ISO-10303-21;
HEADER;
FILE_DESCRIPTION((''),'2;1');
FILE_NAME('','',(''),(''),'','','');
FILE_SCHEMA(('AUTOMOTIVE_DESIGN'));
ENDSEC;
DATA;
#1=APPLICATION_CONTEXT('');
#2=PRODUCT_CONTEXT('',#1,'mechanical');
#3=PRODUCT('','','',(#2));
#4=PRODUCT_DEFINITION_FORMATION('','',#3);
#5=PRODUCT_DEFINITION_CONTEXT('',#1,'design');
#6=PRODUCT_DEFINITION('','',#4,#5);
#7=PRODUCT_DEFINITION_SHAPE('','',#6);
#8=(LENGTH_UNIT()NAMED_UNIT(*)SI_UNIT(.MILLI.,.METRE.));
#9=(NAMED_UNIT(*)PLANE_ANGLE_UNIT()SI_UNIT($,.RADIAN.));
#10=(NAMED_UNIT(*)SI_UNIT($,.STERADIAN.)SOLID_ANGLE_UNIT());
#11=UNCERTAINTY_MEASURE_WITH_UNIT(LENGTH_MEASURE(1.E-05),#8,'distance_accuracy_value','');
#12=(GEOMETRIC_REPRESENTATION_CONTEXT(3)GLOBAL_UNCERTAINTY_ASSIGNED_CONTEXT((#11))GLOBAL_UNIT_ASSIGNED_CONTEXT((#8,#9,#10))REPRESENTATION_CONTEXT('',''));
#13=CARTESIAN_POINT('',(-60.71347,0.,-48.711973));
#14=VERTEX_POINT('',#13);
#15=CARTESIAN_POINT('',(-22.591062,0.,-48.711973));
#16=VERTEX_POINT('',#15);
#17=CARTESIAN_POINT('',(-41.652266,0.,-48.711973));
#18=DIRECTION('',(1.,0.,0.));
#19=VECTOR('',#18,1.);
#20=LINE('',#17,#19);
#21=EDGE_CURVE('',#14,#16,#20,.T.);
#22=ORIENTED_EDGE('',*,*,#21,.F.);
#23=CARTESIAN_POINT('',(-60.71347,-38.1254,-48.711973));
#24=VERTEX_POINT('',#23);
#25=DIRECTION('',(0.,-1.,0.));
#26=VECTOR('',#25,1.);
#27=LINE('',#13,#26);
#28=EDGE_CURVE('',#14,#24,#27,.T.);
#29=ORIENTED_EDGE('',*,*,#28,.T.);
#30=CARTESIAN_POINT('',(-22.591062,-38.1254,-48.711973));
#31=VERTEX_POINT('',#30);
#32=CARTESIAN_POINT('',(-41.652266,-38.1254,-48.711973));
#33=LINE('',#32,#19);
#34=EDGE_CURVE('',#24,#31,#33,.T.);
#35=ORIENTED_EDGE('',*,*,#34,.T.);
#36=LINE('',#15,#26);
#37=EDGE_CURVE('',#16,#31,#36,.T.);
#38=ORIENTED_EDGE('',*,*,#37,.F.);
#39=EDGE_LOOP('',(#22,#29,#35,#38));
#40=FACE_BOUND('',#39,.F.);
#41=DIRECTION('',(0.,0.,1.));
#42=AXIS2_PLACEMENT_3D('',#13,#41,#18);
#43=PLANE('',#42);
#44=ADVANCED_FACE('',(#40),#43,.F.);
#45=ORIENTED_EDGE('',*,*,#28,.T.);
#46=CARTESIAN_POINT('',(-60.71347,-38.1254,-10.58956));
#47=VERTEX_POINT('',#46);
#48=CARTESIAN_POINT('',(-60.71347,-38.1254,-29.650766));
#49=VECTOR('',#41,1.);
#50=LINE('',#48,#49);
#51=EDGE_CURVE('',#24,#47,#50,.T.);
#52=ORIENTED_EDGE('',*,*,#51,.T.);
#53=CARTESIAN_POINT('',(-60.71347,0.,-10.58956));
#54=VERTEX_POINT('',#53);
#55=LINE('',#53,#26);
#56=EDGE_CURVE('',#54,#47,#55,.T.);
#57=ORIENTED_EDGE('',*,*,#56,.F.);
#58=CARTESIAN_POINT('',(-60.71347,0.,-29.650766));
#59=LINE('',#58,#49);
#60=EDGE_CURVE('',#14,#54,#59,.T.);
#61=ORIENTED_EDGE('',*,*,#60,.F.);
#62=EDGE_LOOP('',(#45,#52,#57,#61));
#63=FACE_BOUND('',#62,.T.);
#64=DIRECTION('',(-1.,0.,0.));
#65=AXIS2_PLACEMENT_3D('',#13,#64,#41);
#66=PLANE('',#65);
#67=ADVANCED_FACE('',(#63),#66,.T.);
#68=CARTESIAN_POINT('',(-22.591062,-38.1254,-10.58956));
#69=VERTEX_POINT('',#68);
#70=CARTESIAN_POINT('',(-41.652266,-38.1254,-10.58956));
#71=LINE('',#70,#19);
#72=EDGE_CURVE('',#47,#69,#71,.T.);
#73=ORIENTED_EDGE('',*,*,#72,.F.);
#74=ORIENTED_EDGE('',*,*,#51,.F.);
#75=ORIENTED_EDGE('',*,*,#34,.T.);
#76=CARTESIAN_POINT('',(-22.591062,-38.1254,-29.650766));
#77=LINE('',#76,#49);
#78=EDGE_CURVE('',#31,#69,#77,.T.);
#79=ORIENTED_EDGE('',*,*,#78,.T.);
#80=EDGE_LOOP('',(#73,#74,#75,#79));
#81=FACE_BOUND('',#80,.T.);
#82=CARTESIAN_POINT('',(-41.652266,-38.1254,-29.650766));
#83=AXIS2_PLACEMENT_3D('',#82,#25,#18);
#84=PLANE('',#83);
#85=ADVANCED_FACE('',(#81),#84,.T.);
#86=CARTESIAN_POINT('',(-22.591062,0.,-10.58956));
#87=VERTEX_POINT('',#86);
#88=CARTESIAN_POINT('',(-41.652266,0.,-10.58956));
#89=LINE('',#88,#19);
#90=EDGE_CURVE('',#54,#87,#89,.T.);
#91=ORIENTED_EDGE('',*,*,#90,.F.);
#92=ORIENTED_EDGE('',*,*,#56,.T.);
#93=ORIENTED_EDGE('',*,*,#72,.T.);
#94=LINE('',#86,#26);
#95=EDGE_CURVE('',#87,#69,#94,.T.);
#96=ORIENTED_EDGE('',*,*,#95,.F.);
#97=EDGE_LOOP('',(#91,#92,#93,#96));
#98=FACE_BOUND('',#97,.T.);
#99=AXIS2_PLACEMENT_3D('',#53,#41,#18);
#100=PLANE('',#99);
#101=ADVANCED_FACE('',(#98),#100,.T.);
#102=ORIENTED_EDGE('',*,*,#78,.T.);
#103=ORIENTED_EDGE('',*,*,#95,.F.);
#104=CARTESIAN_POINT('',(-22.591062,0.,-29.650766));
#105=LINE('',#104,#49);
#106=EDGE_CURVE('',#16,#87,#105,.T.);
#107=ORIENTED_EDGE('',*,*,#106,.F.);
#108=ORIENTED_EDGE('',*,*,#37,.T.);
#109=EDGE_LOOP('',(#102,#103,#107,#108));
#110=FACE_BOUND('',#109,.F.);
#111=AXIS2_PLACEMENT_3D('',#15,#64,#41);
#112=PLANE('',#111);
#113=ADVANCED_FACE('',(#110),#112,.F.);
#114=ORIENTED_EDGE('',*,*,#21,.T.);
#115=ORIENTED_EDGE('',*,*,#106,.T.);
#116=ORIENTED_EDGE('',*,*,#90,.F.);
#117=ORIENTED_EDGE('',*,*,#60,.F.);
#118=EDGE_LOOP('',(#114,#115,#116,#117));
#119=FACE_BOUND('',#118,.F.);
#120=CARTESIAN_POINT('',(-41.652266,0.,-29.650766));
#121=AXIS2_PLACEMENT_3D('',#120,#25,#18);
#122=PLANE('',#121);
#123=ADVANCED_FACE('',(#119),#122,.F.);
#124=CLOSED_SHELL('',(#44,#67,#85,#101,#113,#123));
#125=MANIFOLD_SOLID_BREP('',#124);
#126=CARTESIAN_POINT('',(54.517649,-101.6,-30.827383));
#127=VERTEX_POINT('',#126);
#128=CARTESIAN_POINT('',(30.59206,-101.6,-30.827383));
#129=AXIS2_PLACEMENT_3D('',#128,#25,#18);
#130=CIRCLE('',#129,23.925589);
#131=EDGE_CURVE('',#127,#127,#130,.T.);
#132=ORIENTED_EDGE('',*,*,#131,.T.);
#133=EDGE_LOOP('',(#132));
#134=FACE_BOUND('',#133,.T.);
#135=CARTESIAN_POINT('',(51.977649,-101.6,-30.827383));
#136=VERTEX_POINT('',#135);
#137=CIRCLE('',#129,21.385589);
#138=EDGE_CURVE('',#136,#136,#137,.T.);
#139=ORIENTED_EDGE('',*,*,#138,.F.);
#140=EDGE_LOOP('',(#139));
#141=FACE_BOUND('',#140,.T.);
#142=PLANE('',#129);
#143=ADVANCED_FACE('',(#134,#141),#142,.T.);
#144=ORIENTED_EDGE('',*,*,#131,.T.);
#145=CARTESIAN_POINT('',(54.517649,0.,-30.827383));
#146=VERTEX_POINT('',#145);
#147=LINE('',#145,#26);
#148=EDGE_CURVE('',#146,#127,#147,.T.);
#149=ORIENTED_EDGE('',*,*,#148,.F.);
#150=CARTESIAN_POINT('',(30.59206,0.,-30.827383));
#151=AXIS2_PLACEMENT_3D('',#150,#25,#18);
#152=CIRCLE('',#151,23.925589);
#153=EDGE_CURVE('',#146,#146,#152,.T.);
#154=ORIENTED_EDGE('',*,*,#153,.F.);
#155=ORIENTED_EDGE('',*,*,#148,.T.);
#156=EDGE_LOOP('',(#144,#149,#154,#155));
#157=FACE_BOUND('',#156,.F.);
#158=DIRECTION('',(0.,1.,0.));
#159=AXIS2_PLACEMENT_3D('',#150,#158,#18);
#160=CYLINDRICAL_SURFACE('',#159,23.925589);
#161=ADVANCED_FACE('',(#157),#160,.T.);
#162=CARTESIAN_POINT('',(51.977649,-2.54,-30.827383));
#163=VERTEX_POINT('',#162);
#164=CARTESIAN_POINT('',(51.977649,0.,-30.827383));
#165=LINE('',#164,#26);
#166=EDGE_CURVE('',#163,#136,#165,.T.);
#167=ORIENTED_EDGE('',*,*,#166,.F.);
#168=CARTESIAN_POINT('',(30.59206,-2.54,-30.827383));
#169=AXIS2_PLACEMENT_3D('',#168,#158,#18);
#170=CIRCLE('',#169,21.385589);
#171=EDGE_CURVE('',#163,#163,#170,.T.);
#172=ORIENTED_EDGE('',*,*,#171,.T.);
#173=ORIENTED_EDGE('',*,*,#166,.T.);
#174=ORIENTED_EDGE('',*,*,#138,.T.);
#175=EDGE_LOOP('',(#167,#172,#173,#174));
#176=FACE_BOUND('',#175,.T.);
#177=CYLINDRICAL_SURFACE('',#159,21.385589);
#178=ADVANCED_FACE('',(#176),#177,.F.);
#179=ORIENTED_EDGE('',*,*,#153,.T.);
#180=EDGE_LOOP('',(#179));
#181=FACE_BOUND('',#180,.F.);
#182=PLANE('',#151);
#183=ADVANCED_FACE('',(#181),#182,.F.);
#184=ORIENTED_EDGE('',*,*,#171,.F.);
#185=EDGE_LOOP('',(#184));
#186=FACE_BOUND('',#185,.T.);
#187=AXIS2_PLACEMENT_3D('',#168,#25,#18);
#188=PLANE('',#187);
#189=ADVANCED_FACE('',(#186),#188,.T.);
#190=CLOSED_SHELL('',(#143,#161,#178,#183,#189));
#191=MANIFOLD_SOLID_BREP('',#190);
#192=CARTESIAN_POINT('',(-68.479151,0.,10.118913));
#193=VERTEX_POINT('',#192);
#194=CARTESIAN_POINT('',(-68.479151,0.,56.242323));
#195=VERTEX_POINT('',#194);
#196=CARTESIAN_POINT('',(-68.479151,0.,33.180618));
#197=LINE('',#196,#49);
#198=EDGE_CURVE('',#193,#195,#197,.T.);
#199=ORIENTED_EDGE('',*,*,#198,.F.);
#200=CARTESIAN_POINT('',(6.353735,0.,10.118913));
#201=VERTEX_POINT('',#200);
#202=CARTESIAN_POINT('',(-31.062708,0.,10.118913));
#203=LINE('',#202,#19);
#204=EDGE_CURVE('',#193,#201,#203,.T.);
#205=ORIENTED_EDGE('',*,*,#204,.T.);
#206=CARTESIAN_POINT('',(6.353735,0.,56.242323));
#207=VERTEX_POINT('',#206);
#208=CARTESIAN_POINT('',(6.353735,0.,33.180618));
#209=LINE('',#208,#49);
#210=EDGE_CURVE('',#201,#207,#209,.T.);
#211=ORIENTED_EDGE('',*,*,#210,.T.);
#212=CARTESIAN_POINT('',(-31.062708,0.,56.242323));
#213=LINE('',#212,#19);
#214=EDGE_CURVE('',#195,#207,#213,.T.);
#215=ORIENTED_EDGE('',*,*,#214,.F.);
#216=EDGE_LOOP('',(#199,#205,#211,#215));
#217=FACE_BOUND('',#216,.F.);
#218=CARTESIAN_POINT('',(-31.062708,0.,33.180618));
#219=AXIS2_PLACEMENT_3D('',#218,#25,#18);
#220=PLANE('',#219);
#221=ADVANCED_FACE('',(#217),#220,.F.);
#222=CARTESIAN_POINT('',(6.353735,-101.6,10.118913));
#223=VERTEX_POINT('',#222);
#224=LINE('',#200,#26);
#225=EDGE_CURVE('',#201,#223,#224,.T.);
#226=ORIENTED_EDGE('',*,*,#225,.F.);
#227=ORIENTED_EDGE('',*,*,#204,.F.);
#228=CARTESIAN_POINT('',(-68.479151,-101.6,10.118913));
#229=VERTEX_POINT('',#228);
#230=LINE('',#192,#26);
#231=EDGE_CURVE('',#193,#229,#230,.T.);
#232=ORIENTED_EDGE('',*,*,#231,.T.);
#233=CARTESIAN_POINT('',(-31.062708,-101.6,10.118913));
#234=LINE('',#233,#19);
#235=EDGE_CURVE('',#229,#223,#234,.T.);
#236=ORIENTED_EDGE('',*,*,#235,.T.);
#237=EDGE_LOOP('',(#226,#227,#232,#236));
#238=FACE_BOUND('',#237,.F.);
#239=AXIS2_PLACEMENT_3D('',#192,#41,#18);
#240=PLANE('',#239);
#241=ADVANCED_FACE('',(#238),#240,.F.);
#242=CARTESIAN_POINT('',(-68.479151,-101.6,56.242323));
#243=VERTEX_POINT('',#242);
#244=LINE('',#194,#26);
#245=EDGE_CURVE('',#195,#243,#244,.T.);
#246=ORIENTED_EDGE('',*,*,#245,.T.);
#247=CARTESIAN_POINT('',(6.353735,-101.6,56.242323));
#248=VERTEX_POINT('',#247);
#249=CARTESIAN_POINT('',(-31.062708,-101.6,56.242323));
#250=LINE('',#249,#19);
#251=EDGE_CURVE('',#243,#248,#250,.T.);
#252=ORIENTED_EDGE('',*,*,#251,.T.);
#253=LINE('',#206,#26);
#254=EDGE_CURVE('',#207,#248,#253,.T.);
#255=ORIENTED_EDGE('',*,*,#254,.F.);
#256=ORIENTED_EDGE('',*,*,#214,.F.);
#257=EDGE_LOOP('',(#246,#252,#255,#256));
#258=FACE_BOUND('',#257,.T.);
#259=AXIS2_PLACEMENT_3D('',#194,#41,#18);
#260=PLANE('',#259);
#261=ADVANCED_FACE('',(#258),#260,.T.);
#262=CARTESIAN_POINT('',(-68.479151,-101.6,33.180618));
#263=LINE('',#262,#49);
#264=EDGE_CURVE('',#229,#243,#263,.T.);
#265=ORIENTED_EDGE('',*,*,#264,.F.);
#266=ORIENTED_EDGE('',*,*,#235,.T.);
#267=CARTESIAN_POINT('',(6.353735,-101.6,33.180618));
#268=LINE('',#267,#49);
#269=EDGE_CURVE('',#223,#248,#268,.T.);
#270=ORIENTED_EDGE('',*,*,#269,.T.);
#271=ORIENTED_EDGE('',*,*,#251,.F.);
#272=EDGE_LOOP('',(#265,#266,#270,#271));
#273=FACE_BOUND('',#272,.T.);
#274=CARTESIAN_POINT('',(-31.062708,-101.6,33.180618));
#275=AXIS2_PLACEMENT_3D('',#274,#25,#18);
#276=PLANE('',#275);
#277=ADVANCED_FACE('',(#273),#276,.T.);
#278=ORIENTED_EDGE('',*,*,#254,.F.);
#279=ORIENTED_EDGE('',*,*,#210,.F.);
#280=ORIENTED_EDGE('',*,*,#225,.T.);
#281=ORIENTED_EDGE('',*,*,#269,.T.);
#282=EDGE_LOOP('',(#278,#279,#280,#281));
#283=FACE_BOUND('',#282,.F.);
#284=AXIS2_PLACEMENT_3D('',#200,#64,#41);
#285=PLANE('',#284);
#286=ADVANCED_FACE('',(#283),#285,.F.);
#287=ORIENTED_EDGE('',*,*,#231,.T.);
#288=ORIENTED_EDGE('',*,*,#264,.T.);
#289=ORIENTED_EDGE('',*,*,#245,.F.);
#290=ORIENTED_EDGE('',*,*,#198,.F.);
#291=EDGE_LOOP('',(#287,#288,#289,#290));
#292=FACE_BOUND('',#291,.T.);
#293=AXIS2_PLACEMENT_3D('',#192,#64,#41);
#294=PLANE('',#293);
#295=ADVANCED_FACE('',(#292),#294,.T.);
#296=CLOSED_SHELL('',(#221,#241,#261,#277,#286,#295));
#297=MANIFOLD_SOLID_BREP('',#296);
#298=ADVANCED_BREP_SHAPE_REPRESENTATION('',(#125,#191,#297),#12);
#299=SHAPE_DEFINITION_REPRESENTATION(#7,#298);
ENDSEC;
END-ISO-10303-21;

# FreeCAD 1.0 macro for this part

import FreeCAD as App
import Part
import Sketcher
Q = App.Units.Quantity


def faces_at(feature, points):
    """Names of the faces that lie closest to the given points."""
    faces = feature.Shape.Faces
    near = lambda p: min(range(len(faces)), key=lambda i: faces[i].distToShape(Part.Vertex(*p))[0])
    return sorted({f"Face{near(p) + 1}" for p in points})


def add_polygon(sketch, points):
    """Adds a closed chain of lines whose ends are joined by coincident constraints."""
    first, n = sketch.GeometryCount, len(points)
    for a, b in zip(points, points[1:] + points[:1]):
        sketch.addGeometry(Part.LineSegment(App.Vector(*a, 0), App.Vector(*b, 0)), False)
    for i in range(n):
        sketch.addConstraint(Sketcher.Constraint("Coincident", first + i, 2, first + (i + 1) % n, 1))

doc = App.newDocument("Part")
body = doc.addObject("PartDesign::Body", "Body")

sketch1 = doc.addObject("Sketcher::SketchObject", "Sketch")
body.addObject(sketch1)
sketch1.AttachmentSupport = (doc.XZ_Plane, [""])
sketch1.MapMode = "FlatFace"
add_polygon(sketch1, [(-68, 56), (-68, 10), (6, 10), (6, 56)])
sketch1.addConstraint(Sketcher.Constraint("Vertical", 0))
sketch1.addConstraint(Sketcher.Constraint("Horizontal", 1))
sketch1.addConstraint(Sketcher.Constraint("Vertical", 2))
sketch1.addConstraint(Sketcher.Constraint("Horizontal", 3))
sketch1.addConstraint(Sketcher.Constraint("DistanceY", 0, 2, 0, 1, Q("46.123411 mm")))
sketch1.addConstraint(Sketcher.Constraint("DistanceX", 1, 1, 1, 2, Q("74.832886 mm")))
sketch1.addConstraint(Sketcher.Constraint("DistanceX", 0, 2, -1, 1, Q("68.479151 mm")))
sketch1.addConstraint(Sketcher.Constraint("DistanceY", -1, 1, 0, 2, Q("10.118913 mm")))
pad1 = doc.addObject("PartDesign::Pad", "Pad")
body.addObject(pad1)
pad1.Profile = sketch1
pad1.Length = Q("4 in")
body2 = doc.addObject("PartDesign::Body", "Body001")

sketch2 = doc.addObject("Sketcher::SketchObject", "Sketch001")
body2.addObject(sketch2)
sketch2.AttachmentSupport = (doc.getObject("XZ_Plane001"), [""])
sketch2.MapMode = "FlatFace"
add_polygon(sketch2, [(-61, -11), (-61, -49), (-23, -49), (-23, -11)])
sketch2.addConstraint(Sketcher.Constraint("Vertical", 0))
sketch2.addConstraint(Sketcher.Constraint("Horizontal", 1))
sketch2.addConstraint(Sketcher.Constraint("Vertical", 2))
sketch2.addConstraint(Sketcher.Constraint("Horizontal", 3))
sketch2.addConstraint(Sketcher.Constraint("DistanceX", 1, 1, 1, 2, Q("38.122408 mm")))
sketch2.addConstraint(Sketcher.Constraint("DistanceY", 0, 2, 0, 1, Q("38.122413 mm")))
sketch2.addConstraint(Sketcher.Constraint("DistanceX", 0, 2, -1, 1, Q("60.71347 mm")))
sketch2.addConstraint(Sketcher.Constraint("DistanceY", 2, 2, -1, 1, Q("10.58956 mm")))
pad2 = doc.addObject("PartDesign::Pad", "Pad001")
body2.addObject(pad2)
pad2.Profile = sketch2
pad2.Length = Q("1.501 in")
body3 = doc.addObject("PartDesign::Body", "Body002")

sketch3 = doc.addObject("Sketcher::SketchObject", "Sketch002")
body3.addObject(sketch3)
sketch3.AttachmentSupport = (doc.getObject("XZ_Plane002"), [""])
sketch3.MapMode = "FlatFace"
sketch3.addGeometry(Part.Circle(App.Vector(31, -31, 0), App.Vector(0, 0, 1), 24), False)
sketch3.addConstraint(Sketcher.Constraint("Diameter", 0, Q("47.851178 mm")))
sketch3.addConstraint(Sketcher.Constraint("DistanceX", -1, 1, 0, 3, Q("30.59206 mm")))
sketch3.addConstraint(Sketcher.Constraint("DistanceY", 0, 3, -1, 1, Q("30.827383 mm")))
pad3 = doc.addObject("PartDesign::Pad", "Pad002")
body3.addObject(pad3)
pad3.Profile = sketch3
pad3.Length = Q("4 in")
doc.recompute()

thickness = doc.addObject("PartDesign::Thickness", "Thickness")
body3.addObject(thickness)
thickness.Base = (pad3, faces_at(pad3, [(30.592, -101.6, -30.827)]))
thickness.Value = Q("0.1 in")
thickness.Reversed = True
thickness.Join = "Arc"

doc.recompute()
